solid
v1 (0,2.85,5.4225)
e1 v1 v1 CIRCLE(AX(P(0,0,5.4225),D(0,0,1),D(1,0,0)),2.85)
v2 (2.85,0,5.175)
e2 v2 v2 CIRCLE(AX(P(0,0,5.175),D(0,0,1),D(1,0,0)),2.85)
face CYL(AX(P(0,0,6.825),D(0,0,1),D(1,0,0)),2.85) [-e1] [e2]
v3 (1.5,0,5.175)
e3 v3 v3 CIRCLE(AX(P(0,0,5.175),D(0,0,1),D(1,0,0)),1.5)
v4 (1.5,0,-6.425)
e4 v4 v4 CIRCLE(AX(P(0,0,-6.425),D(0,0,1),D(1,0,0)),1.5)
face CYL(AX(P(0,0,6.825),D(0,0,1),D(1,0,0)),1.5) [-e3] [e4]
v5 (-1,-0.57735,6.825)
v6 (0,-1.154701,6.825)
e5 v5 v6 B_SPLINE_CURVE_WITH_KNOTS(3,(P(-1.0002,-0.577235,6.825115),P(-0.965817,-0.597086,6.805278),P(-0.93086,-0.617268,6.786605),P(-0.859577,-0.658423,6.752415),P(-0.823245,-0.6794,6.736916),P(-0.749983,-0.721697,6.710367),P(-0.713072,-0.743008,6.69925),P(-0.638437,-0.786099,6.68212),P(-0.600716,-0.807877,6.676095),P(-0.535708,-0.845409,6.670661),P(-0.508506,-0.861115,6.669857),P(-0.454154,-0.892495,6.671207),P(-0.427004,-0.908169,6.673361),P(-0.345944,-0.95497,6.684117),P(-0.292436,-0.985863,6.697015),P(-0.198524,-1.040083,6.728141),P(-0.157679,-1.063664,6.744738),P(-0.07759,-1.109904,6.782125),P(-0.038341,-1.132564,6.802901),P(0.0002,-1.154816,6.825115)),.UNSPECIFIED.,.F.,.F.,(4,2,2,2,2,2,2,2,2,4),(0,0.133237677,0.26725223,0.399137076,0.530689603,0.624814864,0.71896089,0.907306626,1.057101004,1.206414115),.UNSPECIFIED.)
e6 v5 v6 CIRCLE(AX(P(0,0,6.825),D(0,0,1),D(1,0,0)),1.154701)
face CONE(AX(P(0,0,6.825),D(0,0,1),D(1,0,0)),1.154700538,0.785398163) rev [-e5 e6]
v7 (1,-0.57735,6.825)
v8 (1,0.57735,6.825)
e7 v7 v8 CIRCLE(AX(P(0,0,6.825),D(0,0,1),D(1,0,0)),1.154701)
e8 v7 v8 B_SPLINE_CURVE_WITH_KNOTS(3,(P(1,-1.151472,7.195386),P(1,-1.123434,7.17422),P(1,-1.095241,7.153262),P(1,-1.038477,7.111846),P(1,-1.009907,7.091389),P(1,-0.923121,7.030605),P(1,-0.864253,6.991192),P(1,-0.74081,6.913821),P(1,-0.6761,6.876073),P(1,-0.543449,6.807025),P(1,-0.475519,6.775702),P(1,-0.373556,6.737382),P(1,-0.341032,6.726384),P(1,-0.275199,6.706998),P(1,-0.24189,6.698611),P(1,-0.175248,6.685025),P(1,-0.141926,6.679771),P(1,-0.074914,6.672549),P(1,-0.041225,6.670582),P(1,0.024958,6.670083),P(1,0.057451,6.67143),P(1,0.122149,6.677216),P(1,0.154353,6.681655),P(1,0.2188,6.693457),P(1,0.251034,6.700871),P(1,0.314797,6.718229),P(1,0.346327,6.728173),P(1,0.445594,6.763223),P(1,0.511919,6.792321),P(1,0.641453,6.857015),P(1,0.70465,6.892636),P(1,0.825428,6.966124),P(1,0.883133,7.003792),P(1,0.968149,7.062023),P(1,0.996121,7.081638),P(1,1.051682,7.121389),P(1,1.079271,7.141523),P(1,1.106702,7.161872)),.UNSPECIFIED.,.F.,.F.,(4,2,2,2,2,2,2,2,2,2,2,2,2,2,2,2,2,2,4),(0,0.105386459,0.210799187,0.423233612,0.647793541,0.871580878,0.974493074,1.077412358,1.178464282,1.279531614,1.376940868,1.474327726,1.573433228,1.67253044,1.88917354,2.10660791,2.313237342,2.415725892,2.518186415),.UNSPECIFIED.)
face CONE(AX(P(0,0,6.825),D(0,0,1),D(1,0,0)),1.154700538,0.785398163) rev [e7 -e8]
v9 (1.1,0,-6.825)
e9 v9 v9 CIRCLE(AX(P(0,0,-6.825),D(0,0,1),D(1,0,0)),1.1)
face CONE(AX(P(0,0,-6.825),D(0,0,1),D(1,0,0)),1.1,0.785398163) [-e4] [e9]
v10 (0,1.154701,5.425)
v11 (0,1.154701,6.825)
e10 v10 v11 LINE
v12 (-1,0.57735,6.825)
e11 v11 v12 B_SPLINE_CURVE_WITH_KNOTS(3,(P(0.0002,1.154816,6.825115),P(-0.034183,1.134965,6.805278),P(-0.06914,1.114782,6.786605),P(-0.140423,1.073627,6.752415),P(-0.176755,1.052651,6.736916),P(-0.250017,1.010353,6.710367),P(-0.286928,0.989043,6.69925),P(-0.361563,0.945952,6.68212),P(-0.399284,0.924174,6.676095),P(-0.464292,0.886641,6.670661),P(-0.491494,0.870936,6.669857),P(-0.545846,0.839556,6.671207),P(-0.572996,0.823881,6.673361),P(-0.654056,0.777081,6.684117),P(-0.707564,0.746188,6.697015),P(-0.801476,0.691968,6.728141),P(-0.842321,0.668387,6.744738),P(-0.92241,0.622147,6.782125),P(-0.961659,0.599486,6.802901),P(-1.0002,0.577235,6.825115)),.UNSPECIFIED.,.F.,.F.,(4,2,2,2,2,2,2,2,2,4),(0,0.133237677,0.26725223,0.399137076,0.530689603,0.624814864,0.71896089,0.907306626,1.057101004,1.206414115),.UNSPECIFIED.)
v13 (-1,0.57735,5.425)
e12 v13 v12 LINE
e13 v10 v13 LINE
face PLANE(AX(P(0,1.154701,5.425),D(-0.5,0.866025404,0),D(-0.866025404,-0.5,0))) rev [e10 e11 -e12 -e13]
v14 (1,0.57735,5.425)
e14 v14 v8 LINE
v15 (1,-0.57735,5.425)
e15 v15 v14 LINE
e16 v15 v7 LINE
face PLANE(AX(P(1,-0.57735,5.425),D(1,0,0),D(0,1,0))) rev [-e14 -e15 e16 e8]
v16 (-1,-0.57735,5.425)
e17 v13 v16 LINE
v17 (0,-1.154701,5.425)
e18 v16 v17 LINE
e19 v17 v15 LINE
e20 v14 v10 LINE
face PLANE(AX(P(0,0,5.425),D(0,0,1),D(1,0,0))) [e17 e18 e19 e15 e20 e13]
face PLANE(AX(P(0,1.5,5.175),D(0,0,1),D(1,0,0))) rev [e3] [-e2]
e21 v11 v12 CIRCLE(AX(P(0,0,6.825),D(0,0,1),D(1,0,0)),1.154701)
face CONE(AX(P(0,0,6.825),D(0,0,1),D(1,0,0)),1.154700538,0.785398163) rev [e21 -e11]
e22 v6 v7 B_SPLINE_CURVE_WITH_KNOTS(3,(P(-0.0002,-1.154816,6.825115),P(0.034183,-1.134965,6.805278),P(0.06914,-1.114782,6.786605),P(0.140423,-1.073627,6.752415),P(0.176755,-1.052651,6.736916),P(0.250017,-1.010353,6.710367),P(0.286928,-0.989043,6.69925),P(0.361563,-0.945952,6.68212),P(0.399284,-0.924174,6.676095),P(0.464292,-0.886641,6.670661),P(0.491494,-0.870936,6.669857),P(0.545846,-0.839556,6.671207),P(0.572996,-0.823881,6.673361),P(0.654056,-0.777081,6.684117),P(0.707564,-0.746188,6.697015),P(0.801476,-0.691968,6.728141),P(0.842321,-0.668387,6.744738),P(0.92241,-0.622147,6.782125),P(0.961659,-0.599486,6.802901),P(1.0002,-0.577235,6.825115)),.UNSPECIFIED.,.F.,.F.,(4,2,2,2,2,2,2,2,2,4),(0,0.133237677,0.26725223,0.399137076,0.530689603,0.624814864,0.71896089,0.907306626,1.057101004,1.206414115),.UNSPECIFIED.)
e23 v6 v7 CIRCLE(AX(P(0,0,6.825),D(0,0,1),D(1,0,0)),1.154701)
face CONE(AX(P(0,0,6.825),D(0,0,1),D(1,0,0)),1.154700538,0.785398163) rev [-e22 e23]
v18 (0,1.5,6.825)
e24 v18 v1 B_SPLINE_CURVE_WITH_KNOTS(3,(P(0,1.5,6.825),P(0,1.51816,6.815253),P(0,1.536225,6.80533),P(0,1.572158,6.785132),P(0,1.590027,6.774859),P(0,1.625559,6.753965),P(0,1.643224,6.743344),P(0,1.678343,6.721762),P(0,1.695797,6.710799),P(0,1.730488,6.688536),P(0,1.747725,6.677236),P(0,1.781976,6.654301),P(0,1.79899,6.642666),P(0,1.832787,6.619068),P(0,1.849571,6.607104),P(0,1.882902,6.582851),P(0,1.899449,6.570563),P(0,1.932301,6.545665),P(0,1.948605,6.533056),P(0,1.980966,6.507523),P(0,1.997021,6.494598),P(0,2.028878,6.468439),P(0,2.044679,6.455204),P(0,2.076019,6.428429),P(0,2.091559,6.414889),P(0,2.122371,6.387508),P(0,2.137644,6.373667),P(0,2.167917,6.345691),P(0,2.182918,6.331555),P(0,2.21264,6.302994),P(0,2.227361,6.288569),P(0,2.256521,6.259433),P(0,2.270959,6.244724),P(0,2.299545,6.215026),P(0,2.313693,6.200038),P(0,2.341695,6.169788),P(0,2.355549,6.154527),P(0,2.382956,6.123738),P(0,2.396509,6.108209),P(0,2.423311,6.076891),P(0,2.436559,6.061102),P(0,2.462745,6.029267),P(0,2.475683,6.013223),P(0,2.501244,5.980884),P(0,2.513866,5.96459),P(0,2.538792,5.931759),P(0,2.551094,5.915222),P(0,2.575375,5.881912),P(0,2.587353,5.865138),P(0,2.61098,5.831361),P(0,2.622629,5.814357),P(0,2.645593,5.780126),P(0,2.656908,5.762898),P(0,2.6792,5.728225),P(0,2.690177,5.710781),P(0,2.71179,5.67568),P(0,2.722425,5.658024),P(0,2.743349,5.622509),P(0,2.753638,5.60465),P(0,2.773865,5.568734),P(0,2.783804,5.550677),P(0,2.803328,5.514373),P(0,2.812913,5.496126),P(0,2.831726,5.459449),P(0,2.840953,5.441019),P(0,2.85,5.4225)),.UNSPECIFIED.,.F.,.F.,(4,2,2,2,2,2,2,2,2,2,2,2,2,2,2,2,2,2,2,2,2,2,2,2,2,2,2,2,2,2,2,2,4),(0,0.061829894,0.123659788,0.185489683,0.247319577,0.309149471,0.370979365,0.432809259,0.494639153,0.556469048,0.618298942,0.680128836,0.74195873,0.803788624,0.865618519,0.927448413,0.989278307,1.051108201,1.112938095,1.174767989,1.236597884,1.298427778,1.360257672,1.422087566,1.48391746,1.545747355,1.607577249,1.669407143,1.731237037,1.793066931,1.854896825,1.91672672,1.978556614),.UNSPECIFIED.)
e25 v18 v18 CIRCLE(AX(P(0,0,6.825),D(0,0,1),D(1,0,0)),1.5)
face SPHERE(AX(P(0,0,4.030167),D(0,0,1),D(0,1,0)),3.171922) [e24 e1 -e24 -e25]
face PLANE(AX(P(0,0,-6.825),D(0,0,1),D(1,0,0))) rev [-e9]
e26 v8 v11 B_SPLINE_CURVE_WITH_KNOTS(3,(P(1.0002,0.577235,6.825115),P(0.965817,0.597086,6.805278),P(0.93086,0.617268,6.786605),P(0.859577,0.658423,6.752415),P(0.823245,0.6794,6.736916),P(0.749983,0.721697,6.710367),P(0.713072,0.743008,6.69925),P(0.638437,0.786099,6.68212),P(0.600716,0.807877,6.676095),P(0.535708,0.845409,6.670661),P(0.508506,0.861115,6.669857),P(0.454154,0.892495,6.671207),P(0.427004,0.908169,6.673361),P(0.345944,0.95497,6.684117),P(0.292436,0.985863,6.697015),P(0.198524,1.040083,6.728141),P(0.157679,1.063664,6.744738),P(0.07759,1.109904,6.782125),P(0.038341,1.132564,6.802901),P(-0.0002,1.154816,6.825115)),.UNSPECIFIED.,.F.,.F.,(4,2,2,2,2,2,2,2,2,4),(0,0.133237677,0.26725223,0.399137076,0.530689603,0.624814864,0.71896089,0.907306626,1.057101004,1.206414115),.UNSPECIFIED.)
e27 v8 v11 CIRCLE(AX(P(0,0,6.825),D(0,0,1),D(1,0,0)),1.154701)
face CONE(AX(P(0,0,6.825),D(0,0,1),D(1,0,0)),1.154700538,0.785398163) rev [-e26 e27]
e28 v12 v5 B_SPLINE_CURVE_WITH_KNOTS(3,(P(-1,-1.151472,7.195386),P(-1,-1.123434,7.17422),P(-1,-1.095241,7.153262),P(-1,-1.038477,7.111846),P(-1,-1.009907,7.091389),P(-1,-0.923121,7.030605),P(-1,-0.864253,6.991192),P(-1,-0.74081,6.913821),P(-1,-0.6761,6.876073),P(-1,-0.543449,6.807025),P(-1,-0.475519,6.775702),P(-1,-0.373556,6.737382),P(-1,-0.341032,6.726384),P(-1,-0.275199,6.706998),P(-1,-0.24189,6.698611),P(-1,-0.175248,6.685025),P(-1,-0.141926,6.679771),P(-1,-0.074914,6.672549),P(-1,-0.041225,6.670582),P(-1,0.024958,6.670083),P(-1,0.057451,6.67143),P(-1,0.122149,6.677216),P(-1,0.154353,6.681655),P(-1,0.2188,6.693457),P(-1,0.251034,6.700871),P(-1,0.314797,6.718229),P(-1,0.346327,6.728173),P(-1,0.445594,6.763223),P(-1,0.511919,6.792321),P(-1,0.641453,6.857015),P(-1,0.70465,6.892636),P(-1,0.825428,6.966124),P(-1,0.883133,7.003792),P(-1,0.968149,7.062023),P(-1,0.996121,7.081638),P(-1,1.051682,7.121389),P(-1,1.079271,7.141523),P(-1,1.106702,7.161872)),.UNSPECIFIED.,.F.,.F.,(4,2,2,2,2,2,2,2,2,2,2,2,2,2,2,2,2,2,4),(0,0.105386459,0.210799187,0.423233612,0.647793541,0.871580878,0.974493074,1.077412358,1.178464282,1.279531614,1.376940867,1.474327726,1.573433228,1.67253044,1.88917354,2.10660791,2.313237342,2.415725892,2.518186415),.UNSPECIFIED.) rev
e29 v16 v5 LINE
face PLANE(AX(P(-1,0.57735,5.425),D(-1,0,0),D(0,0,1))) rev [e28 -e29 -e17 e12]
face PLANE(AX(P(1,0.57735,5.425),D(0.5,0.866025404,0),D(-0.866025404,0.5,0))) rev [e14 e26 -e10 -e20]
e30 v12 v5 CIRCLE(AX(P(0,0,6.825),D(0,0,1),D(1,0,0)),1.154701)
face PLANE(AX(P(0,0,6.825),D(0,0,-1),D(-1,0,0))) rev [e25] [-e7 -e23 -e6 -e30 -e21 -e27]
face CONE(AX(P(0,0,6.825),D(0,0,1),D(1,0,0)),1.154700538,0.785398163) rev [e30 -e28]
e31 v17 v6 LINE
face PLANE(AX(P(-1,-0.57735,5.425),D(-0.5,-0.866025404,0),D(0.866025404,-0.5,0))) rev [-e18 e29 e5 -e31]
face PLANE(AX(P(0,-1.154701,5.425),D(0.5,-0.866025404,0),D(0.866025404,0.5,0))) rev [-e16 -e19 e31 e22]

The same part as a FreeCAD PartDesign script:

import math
import FreeCAD as App
import Part
import Sketcher
Q = App.Units.Quantity

doc = App.newDocument("Part")
body = doc.addObject("PartDesign::Body", "Body")

# Sketch on YZ plane
sketch1 = doc.addObject("Sketcher::SketchObject", "Sketch")
body.addObject(sketch1)
sketch1.AttachmentSupport = (doc.YZ_Plane, [""])
sketch1.MapMode = "FlatFace"
sketch1.addGeometry([
    Part.LineSegment(App.Vector(0, 6.825, 0), App.Vector(0, -6.825, 0)),  # 0
    Part.LineSegment(App.Vector(0, -6.825, 0), App.Vector(1.1, -6.825, 0)),  # 1
    Part.LineSegment(App.Vector(1.1, -6.825, 0), App.Vector(1.5, -6.425, 0)),  # 2
    Part.LineSegment(App.Vector(1.5, -6.425, 0), App.Vector(1.5, 5.175, 0)),  # 3
    Part.LineSegment(App.Vector(1.5, 5.175, 0), App.Vector(2.85, 5.175, 0)),  # 4
    Part.LineSegment(App.Vector(2.85, 5.175, 0), App.Vector(2.85, 5.4225, 0)),  # 5
    Part.ArcOfCircle(Part.Circle(App.Vector(0, 4.030167, 0), App.Vector(0, 0, 1), 3.171922), math.radians(26.03726), math.radians(61.777335)),  # 6
    Part.LineSegment(App.Vector(1.5, 6.825, 0), App.Vector(0, 6.825, 0)),  # 7
], False)
sketch1.addConstraint([
    Sketcher.Constraint("Coincident", 0, 2, 1, 1),
    Sketcher.Constraint("Coincident", 1, 2, 2, 1),
    Sketcher.Constraint("Coincident", 2, 2, 3, 1),
    Sketcher.Constraint("Coincident", 3, 2, 4, 1),
    Sketcher.Constraint("Coincident", 4, 2, 5, 1),
    Sketcher.Constraint("Coincident", 5, 2, 6, 1),
    Sketcher.Constraint("Coincident", 6, 2, 7, 1),
    Sketcher.Constraint("Coincident", 7, 2, 0, 1),
    Sketcher.Constraint("Vertical", 0),
    Sketcher.Constraint("Horizontal", 1),
    Sketcher.Constraint("Vertical", 3),
    Sketcher.Constraint("Horizontal", 4),
    Sketcher.Constraint("Vertical", 5),
    Sketcher.Constraint("Horizontal", 7),
    Sketcher.Constraint("Symmetric", 0, 2, 7, 2, -1, 1),
    Sketcher.Constraint("PointOnObject", 6, 3, -2),
    Sketcher.Constraint("Vertical", 3, 2, 6, 2),
    Sketcher.Constraint("Angle", 2, Q("45 deg")),
    Sketcher.Constraint("DistanceX", 1, 1, 1, 2, 1.1),
    Sketcher.Constraint("DistanceX", 7, 2, 7, 1, 1.5),
    Sketcher.Constraint("DistanceY", 3, 1, 3, 2, 11.6),
    Sketcher.Constraint("DistanceX", 4, 1, 4, 2, 1.35),
    Sketcher.Constraint("DistanceY", 0, 2, 0, 1, 13.65),
    Sketcher.Constraint("DistanceY", 5, 1, 5, 2, 0.2475),
])
revolution = doc.addObject("PartDesign::Revolution", "Revolution")
body.addObject(revolution)
revolution.Profile = sketch1
revolution.ReferenceAxis = (sketch1, ["V_Axis"])
revolution.Angle = 360

# Sketch on XY plane
sketch2 = doc.addObject("Sketcher::SketchObject", "Sketch001")
body.addObject(sketch2)
sketch2.AttachmentSupport = (doc.XY_Plane, [""])
sketch2.MapMode = "FlatFace"
sketch2.AttachmentOffset = App.Placement(App.Vector(0, 0, 6.825), App.Rotation())
sketch2.addGeometry([
    Part.LineSegment(App.Vector(0, 1.154701, 0), App.Vector(-1, 0.57735, 0)),  # 0
    Part.LineSegment(App.Vector(-1, 0.57735, 0), App.Vector(-1, -0.57735, 0)),  # 1
    Part.LineSegment(App.Vector(-1, -0.57735, 0), App.Vector(0, -1.154701, 0)),  # 2
    Part.LineSegment(App.Vector(0, -1.154701, 0), App.Vector(1, -0.57735, 0)),  # 3
    Part.LineSegment(App.Vector(1, -0.57735, 0), App.Vector(1, 0.57735, 0)),  # 4
    Part.LineSegment(App.Vector(1, 0.57735, 0), App.Vector(0, 1.154701, 0)),  # 5
], False)
sketch2.addConstraint([
    Sketcher.Constraint("Coincident", 0, 2, 1, 1),
    Sketcher.Constraint("Coincident", 1, 2, 2, 1),
    Sketcher.Constraint("Coincident", 2, 2, 3, 1),
    Sketcher.Constraint("Coincident", 3, 2, 4, 1),
    Sketcher.Constraint("Coincident", 4, 2, 5, 1),
    Sketcher.Constraint("Coincident", 5, 2, 0, 1),
    Sketcher.Constraint("Vertical", 1),
    Sketcher.Constraint("Vertical", 4),
    Sketcher.Constraint("Symmetric", 0, 2, 3, 2, -1, 1),
    Sketcher.Constraint("Symmetric", 2, 2, 5, 2, -1, 1),
    Sketcher.Constraint("PointOnObject", 2, 2, -2),
    Sketcher.Constraint("Parallel", 2, 5),
    Sketcher.Constraint("Horizontal", 1, 2, 3, 2),
    Sketcher.Constraint("Angle", 0, Q("-150 deg")),
    Sketcher.Constraint("DistanceX", 0, 2, -1, 1, 1.0),
    Sketcher.Constraint("DistanceY", 1, 2, 1, 1, 1.154701),
])
pocket1 = doc.addObject("PartDesign::Pocket", "Pocket")
body.addObject(pocket1)
pocket1.Profile = sketch2
pocket1.Length = 1.4

# Sketch on YZ plane
sketch3 = doc.addObject("Sketcher::SketchObject", "Sketch002")
body.addObject(sketch3)
sketch3.AttachmentSupport = (doc.YZ_Plane, [""])
sketch3.MapMode = "FlatFace"
sketch3.addGeometry([
    Part.LineSegment(App.Vector(0, 6.825, 0), App.Vector(-1.154701, 6.825, 0)),
    Part.LineSegment(App.Vector(-1.154701, 6.825, 0), App.Vector(0, 5.670299, 0)),
    Part.LineSegment(App.Vector(0, 5.670299, 0), App.Vector(0, 6.825, 0)),
], False)
sketch3.addConstraint([
    Sketcher.Constraint("Coincident", 0, 2, 1, 1),
    Sketcher.Constraint("Coincident", 1, 2, 2, 1),
    Sketcher.Constraint("Coincident", 2, 2, 0, 1),
    Sketcher.Constraint("Horizontal", 0),
    Sketcher.Constraint("Vertical", 2),
    Sketcher.Constraint("PointOnObject", 1, 2, -2),
    Sketcher.Constraint("Equal", 0, 2),
    Sketcher.Constraint("DistanceX", 0, 2, 0, 1, 1.154701),
    Sketcher.Constraint("DistanceY", -1, 1, 0, 2, 6.825),
])
groove = doc.addObject("PartDesign::Groove", "Groove")
body.addObject(groove)
groove.Profile = sketch3
groove.ReferenceAxis = (sketch3, ["V_Axis"])
groove.Angle = 360

doc.recompute()
